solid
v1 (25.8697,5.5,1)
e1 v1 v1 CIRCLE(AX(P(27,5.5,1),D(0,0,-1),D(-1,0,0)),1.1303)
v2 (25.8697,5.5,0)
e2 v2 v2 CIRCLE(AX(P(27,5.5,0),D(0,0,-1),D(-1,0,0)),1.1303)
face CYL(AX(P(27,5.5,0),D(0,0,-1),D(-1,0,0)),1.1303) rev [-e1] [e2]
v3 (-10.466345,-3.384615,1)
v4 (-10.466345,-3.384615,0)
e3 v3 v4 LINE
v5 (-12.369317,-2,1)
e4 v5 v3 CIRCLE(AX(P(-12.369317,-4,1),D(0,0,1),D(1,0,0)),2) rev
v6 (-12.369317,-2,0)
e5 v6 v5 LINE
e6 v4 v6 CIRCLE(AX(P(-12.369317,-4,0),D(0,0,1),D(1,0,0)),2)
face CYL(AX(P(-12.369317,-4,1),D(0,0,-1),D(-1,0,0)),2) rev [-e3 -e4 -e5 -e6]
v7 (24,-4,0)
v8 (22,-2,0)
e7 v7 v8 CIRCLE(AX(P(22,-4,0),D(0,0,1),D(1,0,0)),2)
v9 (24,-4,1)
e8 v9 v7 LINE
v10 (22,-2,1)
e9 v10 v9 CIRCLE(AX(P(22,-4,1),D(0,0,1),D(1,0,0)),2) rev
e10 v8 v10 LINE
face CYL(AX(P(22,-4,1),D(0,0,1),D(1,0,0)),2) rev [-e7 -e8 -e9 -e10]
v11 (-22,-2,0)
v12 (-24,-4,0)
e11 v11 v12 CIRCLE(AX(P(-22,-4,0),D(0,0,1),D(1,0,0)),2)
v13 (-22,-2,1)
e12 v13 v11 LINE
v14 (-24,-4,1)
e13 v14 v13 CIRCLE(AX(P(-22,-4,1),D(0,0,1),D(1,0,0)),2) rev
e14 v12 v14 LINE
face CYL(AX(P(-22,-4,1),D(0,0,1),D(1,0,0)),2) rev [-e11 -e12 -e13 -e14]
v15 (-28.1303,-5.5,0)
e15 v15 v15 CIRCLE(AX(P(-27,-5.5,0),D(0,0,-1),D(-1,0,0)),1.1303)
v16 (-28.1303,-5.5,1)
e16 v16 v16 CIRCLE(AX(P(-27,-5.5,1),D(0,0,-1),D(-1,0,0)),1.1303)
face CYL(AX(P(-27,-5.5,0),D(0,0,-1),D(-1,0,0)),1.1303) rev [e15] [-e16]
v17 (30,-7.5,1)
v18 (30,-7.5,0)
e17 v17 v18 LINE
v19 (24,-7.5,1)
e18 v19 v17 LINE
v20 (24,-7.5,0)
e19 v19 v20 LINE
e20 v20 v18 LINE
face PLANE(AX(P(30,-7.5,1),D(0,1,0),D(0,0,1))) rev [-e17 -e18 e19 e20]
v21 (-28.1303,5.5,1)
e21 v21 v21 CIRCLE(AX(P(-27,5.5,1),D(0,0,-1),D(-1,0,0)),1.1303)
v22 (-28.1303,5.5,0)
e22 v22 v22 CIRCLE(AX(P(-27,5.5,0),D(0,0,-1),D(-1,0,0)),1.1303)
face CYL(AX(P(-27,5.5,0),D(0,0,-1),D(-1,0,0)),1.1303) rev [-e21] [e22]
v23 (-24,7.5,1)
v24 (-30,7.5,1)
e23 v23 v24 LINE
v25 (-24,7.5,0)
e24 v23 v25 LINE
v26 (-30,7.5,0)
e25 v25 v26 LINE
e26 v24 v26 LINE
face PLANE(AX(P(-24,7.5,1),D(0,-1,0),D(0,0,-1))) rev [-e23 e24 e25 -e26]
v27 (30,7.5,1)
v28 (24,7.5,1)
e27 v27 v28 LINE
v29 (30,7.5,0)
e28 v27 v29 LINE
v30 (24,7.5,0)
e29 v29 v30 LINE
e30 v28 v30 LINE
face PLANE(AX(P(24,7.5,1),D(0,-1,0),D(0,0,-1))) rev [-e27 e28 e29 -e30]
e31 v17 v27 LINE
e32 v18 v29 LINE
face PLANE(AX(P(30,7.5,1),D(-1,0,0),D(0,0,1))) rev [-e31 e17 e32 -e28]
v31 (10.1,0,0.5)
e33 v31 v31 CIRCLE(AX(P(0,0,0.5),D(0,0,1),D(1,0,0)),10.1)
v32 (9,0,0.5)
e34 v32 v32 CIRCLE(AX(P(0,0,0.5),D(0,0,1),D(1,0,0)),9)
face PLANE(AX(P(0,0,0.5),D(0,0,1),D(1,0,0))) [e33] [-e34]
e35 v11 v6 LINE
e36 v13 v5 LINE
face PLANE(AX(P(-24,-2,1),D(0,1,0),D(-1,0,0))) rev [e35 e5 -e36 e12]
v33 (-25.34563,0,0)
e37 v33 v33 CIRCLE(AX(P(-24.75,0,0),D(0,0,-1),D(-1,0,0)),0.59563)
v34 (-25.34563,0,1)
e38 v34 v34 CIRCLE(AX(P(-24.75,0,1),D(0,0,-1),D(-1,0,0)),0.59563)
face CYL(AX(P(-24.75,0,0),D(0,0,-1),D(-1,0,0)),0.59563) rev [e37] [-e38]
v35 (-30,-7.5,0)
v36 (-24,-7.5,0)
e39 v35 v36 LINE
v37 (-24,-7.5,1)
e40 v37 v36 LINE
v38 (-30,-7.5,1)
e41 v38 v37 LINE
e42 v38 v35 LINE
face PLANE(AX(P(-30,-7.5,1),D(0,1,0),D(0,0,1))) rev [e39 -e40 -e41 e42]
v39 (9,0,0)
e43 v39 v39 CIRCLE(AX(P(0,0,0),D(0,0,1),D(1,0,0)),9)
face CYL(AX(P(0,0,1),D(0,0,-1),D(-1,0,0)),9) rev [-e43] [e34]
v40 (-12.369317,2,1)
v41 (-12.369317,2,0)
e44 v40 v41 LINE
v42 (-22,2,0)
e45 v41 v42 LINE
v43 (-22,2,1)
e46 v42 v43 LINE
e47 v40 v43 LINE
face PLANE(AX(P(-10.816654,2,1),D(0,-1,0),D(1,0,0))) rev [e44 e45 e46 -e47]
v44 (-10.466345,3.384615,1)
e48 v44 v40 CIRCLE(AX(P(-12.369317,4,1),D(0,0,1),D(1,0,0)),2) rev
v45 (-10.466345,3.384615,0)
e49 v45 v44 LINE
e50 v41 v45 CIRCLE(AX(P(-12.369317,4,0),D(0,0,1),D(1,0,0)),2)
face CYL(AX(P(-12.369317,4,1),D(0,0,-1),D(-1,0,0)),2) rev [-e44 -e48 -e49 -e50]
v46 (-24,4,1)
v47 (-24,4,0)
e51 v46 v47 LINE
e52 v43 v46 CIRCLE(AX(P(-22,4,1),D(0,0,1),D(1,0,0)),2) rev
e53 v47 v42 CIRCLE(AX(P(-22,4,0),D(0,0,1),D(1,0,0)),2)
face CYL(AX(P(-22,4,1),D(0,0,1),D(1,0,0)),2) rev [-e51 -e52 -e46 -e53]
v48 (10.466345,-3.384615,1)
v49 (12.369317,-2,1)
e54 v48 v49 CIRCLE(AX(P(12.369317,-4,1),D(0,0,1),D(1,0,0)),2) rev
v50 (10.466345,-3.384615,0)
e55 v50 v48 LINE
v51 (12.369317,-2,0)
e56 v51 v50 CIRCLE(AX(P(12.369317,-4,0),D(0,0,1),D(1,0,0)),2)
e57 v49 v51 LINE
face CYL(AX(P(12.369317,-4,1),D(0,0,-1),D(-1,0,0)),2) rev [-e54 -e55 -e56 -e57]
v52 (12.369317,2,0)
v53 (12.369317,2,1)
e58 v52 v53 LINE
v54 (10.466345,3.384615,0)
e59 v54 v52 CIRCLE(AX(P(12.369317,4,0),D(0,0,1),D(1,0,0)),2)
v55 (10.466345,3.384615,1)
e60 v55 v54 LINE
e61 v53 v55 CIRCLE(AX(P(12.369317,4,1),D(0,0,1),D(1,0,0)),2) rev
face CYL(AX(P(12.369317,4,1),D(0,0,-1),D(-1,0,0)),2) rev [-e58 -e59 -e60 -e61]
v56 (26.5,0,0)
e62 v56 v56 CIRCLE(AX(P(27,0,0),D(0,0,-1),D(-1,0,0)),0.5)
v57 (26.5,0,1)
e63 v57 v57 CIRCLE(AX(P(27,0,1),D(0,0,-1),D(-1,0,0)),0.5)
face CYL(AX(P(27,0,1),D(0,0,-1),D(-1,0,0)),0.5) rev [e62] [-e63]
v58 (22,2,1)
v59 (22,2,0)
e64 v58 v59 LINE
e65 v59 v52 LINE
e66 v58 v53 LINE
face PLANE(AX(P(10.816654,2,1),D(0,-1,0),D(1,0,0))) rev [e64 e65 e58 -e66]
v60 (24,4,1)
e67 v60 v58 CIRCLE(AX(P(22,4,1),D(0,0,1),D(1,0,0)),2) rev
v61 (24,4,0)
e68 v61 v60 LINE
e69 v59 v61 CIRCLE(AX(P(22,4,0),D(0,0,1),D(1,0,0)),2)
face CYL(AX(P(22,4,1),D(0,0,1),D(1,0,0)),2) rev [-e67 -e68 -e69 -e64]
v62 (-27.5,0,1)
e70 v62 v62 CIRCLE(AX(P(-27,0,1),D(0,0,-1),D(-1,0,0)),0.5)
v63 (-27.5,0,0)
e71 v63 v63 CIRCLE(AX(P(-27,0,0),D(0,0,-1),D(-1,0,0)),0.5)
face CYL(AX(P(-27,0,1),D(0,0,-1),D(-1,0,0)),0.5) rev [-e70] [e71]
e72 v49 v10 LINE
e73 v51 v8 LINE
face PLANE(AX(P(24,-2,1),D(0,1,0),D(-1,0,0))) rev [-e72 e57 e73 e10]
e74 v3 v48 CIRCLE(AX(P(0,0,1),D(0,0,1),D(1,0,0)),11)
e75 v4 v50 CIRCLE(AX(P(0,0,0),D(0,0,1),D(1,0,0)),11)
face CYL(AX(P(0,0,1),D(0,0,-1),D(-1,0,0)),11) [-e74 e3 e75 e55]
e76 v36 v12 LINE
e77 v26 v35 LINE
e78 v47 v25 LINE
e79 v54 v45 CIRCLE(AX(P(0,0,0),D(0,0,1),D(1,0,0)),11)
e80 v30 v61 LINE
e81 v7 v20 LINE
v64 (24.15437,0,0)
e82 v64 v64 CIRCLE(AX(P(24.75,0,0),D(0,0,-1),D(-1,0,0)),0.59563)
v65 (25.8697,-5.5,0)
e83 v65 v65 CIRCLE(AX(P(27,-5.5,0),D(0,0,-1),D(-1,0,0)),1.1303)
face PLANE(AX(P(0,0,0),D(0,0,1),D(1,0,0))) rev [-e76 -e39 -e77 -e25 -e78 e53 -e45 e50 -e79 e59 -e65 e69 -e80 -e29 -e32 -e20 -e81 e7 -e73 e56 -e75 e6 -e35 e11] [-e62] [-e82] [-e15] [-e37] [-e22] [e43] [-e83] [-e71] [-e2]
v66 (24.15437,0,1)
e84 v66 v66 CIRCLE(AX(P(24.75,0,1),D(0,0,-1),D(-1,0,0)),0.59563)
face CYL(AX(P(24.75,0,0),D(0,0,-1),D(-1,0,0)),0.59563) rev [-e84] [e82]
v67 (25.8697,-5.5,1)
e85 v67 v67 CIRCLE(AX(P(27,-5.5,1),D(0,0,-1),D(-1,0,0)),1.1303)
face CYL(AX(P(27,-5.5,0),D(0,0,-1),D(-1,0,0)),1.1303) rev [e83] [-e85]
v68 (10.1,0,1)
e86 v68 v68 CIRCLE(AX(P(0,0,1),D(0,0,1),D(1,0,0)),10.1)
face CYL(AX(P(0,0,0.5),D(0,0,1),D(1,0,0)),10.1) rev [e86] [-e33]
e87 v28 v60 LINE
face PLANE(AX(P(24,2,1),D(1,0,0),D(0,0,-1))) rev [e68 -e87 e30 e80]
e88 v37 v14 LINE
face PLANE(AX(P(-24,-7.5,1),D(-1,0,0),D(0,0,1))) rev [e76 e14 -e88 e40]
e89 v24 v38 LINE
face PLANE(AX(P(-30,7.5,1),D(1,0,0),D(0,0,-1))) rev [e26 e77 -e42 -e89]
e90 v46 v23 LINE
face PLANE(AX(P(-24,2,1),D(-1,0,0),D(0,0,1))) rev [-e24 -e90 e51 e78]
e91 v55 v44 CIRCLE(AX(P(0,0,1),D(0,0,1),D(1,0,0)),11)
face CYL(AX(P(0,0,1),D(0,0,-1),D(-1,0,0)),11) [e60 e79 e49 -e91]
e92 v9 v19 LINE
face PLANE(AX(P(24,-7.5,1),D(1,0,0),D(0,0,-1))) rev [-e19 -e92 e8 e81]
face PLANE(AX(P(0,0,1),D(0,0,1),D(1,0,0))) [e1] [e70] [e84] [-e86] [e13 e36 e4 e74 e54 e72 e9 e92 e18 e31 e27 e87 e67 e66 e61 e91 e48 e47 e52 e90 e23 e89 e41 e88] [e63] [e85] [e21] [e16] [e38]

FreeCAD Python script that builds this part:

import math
import FreeCAD as App
import Part
import Sketcher
from FreeCAD import Vector
Q = App.Units.Quantity


def edges_at(feature, points):
    """Names of the edges that pass closest to the given points."""
    edges = feature.Shape.Edges
    near = lambda p: min(range(len(edges)), key=lambda i: edges[i].distToShape(Part.Vertex(*p))[0])
    return sorted({f"Edge{near(p) + 1}" for p in points})

doc = App.newDocument("Part")
body = doc.addObject("PartDesign::Body", "Body")

# Sketch on XY plane
sketch1 = body.newObject("Sketcher::SketchObject", "Sketch")
sketch1.AttachmentSupport = (doc.getObject("XY_Plane"), [""])
sketch1.MapMode = "FlatFace"
sketch1.addGeometry([
    Part.LineSegment(Vector(24, 2, 0), Vector(11, 2, 0)),  # 0
    Part.ArcOfCircle(Part.Circle(Vector(0, 0, 0), Vector(0, 0, 1), 11), math.radians(10), math.radians(170)),  # 1
    Part.LineSegment(Vector(-11, 2, 0), Vector(-24, 2, 0)),  # 2
    Part.LineSegment(Vector(-24, 2, 0), Vector(-24, 8, 0)),  # 3
    Part.LineSegment(Vector(-24, 8, 0), Vector(-30, 8, 0)),  # 4
    Part.LineSegment(Vector(-30, 8, 0), Vector(-30, -8, 0)),  # 5
    Part.LineSegment(Vector(-30, -8, 0), Vector(-24, -8, 0)),  # 6
    Part.LineSegment(Vector(-24, -8, 0), Vector(-24, -2, 0)),  # 7
    Part.LineSegment(Vector(-24, -2, 0), Vector(-11, -2, 0)),  # 8
    Part.ArcOfCircle(Part.Circle(Vector(0, 0, 0), Vector(0, 0, 1), 11), math.radians(-170), math.radians(-10)),  # 9
    Part.LineSegment(Vector(11, -2, 0), Vector(24, -2, 0)),  # 10
    Part.LineSegment(Vector(24, -2, 0), Vector(24, -8, 0)),  # 11
    Part.LineSegment(Vector(24, -8, 0), Vector(30, -8, 0)),  # 12
    Part.LineSegment(Vector(30, -8, 0), Vector(30, 8, 0)),  # 13
    Part.LineSegment(Vector(30, 8, 0), Vector(24, 8, 0)),  # 14
    Part.LineSegment(Vector(24, 8, 0), Vector(24, 2, 0)),  # 15
    Part.Circle(Vector(0, 0, 0), Vector(0, 0, 1), 9),  # 16
], False)
sketch1.addConstraint([
    Sketcher.Constraint("Coincident", 0, 2, 1, 1),
    Sketcher.Constraint("Coincident", 1, 2, 2, 1),
    Sketcher.Constraint("Coincident", 2, 2, 3, 1),
    Sketcher.Constraint("Coincident", 3, 2, 4, 1),
    Sketcher.Constraint("Coincident", 4, 2, 5, 1),
    Sketcher.Constraint("Coincident", 5, 2, 6, 1),
    Sketcher.Constraint("Coincident", 6, 2, 7, 1),
    Sketcher.Constraint("Coincident", 7, 2, 8, 1),
    Sketcher.Constraint("Coincident", 8, 2, 9, 1),
    Sketcher.Constraint("Coincident", 9, 2, 10, 1),
    Sketcher.Constraint("Coincident", 10, 2, 11, 1),
    Sketcher.Constraint("Coincident", 11, 2, 12, 1),
    Sketcher.Constraint("Coincident", 12, 2, 13, 1),
    Sketcher.Constraint("Coincident", 13, 2, 14, 1),
    Sketcher.Constraint("Coincident", 14, 2, 15, 1),
    Sketcher.Constraint("Coincident", 15, 2, 0, 1),
    Sketcher.Constraint("Horizontal", 0),
    Sketcher.Constraint("Horizontal", 2),
    Sketcher.Constraint("Vertical", 3),
    Sketcher.Constraint("Horizontal", 4),
    Sketcher.Constraint("Vertical", 5),
    Sketcher.Constraint("Horizontal", 6),
    Sketcher.Constraint("Vertical", 7),
    Sketcher.Constraint("Horizontal", 8),
    Sketcher.Constraint("Horizontal", 10),
    Sketcher.Constraint("Vertical", 11),
    Sketcher.Constraint("Horizontal", 12),
    Sketcher.Constraint("Vertical", 13),
    Sketcher.Constraint("Horizontal", 14),
    Sketcher.Constraint("Vertical", 15),
    Sketcher.Constraint("Coincident", 1, 3, -1, 1),
    Sketcher.Constraint("Coincident", 9, 3, -1, 1),
    Sketcher.Constraint("Coincident", 16, 3, -1, 1),
    Sketcher.Constraint("Equal", 1, 9),
    Sketcher.Constraint("Symmetric", 2, 2, 10, 2, -1, 1),
    Sketcher.Constraint("Symmetric", 4, 2, 12, 2, -1, 1),
    Sketcher.Constraint("Symmetric", 6, 2, 14, 2, -1, 1),
    Sketcher.Constraint("Symmetric", 7, 2, 10, 2, -2),
    Sketcher.Constraint("Horizontal", 0, 2, 1, 2),
    Sketcher.Constraint("Horizontal", 6, 2, 11, 2),
    Sketcher.Constraint("Diameter", 16, Q("18 mm")),
    Sketcher.Constraint("Radius", 1, Q("11 mm")),
    Sketcher.Constraint("DistanceX", 4, 2, 4, 1, Q("6 mm")),
    Sketcher.Constraint("DistanceY", 5, 2, 5, 1, Q("15 mm")),
    Sketcher.Constraint("DistanceY", 3, 1, 3, 2, Q("5.5 mm")),
    Sketcher.Constraint("DistanceX", 2, 2, -1, 1, Q("24 mm")),
])
pad1 = body.newObject("PartDesign::Pad", "Pad")
pad1.Profile = sketch1
pad1.Length = 1

# Sketch on XY plane
sketch2 = body.newObject("Sketcher::SketchObject", "Sketch001")
sketch2.AttachmentSupport = (doc.getObject("XY_Plane"), [""])
sketch2.MapMode = "FlatFace"
sketch2.AttachmentOffset = App.Placement(Vector(0, 0, 1), App.Rotation())
sketch2.addGeometry(Part.Circle(Vector(0, 0, 0), Vector(0, 0, 1), 10), False)
sketch2.addConstraint([
    Sketcher.Constraint("Coincident", 0, 3, -1, 1),
    Sketcher.Constraint("Diameter", 0, Q("20.2 mm")),
])
pocket1 = body.newObject("PartDesign::Pocket", "Pocket")
pocket1.Profile = sketch2
pocket1.Length = 0.5

# Sketch on XY plane
sketch3 = body.newObject("Sketcher::SketchObject", "Sketch002")
sketch3.AttachmentSupport = (doc.getObject("XY_Plane"), [""])
sketch3.MapMode = "FlatFace"
sketch3.addGeometry([
    Part.Circle(Vector(27, 0, 0), Vector(0, 0, 1), 0.5),
    Part.Circle(Vector(-27, 0, 0), Vector(0, 0, 1), 0.5),
], False)
sketch3.addConstraint([
    Sketcher.Constraint("Equal", 0, 1),
    Sketcher.Constraint("Symmetric", 0, 3, 1, 3, -1, 1),
    Sketcher.Constraint("PointOnObject", 0, 3, -1),
    Sketcher.Constraint("Diameter", 0, Q("1 mm")),
    Sketcher.Constraint("DistanceX", -1, 1, 0, 3, Q("27 mm")),
])
pocket2 = body.newObject("PartDesign::Pocket", "Pocket001")
pocket2.Profile = sketch3
pocket2.Type = "ThroughAll"
pocket2.Reversed = True

# Sketch on XY plane
sketch4 = body.newObject("Sketcher::SketchObject", "Sketch003")
sketch4.AttachmentSupport = (doc.getObject("XY_Plane"), [""])
sketch4.MapMode = "FlatFace"
sketch4.addGeometry([
    Part.Circle(Vector(27, -5.5, 0), Vector(0, 0, 1), 1.1),
    Part.Circle(Vector(27, 5.5, 0), Vector(0, 0, 1), 1.1),
    Part.Circle(Vector(-27, 5.5, 0), Vector(0, 0, 1), 1.1),
    Part.Circle(Vector(-27, -5.5, 0), Vector(0, 0, 1), 1.1),
], False)
sketch4.addConstraint([
    Sketcher.Constraint("Equal", 0, 1),
    Sketcher.Constraint("Equal", 1, 2),
    Sketcher.Constraint("Equal", 2, 3),
    Sketcher.Constraint("Symmetric", 0, 3, 2, 3, -1, 1),
    Sketcher.Constraint("Symmetric", 1, 3, 3, 3, -1, 1),
    Sketcher.Constraint("Symmetric", 1, 3, 2, 3, -2),
    Sketcher.Constraint("DistanceX", -1, 1, 0, 3, Q("27 mm")),
    Sketcher.Constraint("DistanceY", 0, 3, 1, 3, Q("11 mm")),
    Sketcher.Constraint("Diameter", 0, Q("2.2606 mm")),
])
doc.recompute()
hole = body.newObject("PartDesign::Hole", "Hole")
hole.Profile = sketch4
hole.ThreadType = "None"
hole.Diameter = 2.2606
hole.DepthType = "ThroughAll"
hole.Reversed = True

# Sketch on XY plane
sketch5 = body.newObject("Sketcher::SketchObject", "Sketch004")
sketch5.AttachmentSupport = (doc.getObject("XY_Plane"), [""])
sketch5.MapMode = "FlatFace"
sketch5.addGeometry([
    Part.Circle(Vector(24.8, 0, 0), Vector(0, 0, 1), 0.6),
    Part.Circle(Vector(-24.8, 0, 0), Vector(0, 0, 1), 0.6),
], False)
sketch5.addConstraint([
    Sketcher.Constraint("Equal", 0, 1),
    Sketcher.Constraint("Symmetric", 0, 3, 1, 3, -1, 1),
    Sketcher.Constraint("PointOnObject", 0, 3, -1),
    Sketcher.Constraint("DistanceX", 1, 3, 0, 3, Q("49.5 mm")),
    Sketcher.Constraint("Diameter", 0, Q("1.19126 mm")),
])
doc.recompute()
hole2 = body.newObject("PartDesign::Hole", "Hole001")
hole2.Profile = sketch5
hole2.ThreadType = "None"
hole2.Diameter = 1.19126
hole2.DepthType = "ThroughAll"
hole2.Reversed = True
doc.recompute()

fillet = body.newObject("PartDesign::Fillet", "Fillet")
fillet.Base = (hole2, edges_at(hole2, [
    (-24, 2, 0.5),
    (-10.817, 2, 0.5),
    (10.817, 2, 0.5),
    (24, 2, 0.5),
    (24, -2, 0.5),
    (10.817, -2, 0.5),
    (-10.817, -2, 0.5),
    (-24, -2, 0.5),
]))
fillet.Radius = 2

doc.recompute()
